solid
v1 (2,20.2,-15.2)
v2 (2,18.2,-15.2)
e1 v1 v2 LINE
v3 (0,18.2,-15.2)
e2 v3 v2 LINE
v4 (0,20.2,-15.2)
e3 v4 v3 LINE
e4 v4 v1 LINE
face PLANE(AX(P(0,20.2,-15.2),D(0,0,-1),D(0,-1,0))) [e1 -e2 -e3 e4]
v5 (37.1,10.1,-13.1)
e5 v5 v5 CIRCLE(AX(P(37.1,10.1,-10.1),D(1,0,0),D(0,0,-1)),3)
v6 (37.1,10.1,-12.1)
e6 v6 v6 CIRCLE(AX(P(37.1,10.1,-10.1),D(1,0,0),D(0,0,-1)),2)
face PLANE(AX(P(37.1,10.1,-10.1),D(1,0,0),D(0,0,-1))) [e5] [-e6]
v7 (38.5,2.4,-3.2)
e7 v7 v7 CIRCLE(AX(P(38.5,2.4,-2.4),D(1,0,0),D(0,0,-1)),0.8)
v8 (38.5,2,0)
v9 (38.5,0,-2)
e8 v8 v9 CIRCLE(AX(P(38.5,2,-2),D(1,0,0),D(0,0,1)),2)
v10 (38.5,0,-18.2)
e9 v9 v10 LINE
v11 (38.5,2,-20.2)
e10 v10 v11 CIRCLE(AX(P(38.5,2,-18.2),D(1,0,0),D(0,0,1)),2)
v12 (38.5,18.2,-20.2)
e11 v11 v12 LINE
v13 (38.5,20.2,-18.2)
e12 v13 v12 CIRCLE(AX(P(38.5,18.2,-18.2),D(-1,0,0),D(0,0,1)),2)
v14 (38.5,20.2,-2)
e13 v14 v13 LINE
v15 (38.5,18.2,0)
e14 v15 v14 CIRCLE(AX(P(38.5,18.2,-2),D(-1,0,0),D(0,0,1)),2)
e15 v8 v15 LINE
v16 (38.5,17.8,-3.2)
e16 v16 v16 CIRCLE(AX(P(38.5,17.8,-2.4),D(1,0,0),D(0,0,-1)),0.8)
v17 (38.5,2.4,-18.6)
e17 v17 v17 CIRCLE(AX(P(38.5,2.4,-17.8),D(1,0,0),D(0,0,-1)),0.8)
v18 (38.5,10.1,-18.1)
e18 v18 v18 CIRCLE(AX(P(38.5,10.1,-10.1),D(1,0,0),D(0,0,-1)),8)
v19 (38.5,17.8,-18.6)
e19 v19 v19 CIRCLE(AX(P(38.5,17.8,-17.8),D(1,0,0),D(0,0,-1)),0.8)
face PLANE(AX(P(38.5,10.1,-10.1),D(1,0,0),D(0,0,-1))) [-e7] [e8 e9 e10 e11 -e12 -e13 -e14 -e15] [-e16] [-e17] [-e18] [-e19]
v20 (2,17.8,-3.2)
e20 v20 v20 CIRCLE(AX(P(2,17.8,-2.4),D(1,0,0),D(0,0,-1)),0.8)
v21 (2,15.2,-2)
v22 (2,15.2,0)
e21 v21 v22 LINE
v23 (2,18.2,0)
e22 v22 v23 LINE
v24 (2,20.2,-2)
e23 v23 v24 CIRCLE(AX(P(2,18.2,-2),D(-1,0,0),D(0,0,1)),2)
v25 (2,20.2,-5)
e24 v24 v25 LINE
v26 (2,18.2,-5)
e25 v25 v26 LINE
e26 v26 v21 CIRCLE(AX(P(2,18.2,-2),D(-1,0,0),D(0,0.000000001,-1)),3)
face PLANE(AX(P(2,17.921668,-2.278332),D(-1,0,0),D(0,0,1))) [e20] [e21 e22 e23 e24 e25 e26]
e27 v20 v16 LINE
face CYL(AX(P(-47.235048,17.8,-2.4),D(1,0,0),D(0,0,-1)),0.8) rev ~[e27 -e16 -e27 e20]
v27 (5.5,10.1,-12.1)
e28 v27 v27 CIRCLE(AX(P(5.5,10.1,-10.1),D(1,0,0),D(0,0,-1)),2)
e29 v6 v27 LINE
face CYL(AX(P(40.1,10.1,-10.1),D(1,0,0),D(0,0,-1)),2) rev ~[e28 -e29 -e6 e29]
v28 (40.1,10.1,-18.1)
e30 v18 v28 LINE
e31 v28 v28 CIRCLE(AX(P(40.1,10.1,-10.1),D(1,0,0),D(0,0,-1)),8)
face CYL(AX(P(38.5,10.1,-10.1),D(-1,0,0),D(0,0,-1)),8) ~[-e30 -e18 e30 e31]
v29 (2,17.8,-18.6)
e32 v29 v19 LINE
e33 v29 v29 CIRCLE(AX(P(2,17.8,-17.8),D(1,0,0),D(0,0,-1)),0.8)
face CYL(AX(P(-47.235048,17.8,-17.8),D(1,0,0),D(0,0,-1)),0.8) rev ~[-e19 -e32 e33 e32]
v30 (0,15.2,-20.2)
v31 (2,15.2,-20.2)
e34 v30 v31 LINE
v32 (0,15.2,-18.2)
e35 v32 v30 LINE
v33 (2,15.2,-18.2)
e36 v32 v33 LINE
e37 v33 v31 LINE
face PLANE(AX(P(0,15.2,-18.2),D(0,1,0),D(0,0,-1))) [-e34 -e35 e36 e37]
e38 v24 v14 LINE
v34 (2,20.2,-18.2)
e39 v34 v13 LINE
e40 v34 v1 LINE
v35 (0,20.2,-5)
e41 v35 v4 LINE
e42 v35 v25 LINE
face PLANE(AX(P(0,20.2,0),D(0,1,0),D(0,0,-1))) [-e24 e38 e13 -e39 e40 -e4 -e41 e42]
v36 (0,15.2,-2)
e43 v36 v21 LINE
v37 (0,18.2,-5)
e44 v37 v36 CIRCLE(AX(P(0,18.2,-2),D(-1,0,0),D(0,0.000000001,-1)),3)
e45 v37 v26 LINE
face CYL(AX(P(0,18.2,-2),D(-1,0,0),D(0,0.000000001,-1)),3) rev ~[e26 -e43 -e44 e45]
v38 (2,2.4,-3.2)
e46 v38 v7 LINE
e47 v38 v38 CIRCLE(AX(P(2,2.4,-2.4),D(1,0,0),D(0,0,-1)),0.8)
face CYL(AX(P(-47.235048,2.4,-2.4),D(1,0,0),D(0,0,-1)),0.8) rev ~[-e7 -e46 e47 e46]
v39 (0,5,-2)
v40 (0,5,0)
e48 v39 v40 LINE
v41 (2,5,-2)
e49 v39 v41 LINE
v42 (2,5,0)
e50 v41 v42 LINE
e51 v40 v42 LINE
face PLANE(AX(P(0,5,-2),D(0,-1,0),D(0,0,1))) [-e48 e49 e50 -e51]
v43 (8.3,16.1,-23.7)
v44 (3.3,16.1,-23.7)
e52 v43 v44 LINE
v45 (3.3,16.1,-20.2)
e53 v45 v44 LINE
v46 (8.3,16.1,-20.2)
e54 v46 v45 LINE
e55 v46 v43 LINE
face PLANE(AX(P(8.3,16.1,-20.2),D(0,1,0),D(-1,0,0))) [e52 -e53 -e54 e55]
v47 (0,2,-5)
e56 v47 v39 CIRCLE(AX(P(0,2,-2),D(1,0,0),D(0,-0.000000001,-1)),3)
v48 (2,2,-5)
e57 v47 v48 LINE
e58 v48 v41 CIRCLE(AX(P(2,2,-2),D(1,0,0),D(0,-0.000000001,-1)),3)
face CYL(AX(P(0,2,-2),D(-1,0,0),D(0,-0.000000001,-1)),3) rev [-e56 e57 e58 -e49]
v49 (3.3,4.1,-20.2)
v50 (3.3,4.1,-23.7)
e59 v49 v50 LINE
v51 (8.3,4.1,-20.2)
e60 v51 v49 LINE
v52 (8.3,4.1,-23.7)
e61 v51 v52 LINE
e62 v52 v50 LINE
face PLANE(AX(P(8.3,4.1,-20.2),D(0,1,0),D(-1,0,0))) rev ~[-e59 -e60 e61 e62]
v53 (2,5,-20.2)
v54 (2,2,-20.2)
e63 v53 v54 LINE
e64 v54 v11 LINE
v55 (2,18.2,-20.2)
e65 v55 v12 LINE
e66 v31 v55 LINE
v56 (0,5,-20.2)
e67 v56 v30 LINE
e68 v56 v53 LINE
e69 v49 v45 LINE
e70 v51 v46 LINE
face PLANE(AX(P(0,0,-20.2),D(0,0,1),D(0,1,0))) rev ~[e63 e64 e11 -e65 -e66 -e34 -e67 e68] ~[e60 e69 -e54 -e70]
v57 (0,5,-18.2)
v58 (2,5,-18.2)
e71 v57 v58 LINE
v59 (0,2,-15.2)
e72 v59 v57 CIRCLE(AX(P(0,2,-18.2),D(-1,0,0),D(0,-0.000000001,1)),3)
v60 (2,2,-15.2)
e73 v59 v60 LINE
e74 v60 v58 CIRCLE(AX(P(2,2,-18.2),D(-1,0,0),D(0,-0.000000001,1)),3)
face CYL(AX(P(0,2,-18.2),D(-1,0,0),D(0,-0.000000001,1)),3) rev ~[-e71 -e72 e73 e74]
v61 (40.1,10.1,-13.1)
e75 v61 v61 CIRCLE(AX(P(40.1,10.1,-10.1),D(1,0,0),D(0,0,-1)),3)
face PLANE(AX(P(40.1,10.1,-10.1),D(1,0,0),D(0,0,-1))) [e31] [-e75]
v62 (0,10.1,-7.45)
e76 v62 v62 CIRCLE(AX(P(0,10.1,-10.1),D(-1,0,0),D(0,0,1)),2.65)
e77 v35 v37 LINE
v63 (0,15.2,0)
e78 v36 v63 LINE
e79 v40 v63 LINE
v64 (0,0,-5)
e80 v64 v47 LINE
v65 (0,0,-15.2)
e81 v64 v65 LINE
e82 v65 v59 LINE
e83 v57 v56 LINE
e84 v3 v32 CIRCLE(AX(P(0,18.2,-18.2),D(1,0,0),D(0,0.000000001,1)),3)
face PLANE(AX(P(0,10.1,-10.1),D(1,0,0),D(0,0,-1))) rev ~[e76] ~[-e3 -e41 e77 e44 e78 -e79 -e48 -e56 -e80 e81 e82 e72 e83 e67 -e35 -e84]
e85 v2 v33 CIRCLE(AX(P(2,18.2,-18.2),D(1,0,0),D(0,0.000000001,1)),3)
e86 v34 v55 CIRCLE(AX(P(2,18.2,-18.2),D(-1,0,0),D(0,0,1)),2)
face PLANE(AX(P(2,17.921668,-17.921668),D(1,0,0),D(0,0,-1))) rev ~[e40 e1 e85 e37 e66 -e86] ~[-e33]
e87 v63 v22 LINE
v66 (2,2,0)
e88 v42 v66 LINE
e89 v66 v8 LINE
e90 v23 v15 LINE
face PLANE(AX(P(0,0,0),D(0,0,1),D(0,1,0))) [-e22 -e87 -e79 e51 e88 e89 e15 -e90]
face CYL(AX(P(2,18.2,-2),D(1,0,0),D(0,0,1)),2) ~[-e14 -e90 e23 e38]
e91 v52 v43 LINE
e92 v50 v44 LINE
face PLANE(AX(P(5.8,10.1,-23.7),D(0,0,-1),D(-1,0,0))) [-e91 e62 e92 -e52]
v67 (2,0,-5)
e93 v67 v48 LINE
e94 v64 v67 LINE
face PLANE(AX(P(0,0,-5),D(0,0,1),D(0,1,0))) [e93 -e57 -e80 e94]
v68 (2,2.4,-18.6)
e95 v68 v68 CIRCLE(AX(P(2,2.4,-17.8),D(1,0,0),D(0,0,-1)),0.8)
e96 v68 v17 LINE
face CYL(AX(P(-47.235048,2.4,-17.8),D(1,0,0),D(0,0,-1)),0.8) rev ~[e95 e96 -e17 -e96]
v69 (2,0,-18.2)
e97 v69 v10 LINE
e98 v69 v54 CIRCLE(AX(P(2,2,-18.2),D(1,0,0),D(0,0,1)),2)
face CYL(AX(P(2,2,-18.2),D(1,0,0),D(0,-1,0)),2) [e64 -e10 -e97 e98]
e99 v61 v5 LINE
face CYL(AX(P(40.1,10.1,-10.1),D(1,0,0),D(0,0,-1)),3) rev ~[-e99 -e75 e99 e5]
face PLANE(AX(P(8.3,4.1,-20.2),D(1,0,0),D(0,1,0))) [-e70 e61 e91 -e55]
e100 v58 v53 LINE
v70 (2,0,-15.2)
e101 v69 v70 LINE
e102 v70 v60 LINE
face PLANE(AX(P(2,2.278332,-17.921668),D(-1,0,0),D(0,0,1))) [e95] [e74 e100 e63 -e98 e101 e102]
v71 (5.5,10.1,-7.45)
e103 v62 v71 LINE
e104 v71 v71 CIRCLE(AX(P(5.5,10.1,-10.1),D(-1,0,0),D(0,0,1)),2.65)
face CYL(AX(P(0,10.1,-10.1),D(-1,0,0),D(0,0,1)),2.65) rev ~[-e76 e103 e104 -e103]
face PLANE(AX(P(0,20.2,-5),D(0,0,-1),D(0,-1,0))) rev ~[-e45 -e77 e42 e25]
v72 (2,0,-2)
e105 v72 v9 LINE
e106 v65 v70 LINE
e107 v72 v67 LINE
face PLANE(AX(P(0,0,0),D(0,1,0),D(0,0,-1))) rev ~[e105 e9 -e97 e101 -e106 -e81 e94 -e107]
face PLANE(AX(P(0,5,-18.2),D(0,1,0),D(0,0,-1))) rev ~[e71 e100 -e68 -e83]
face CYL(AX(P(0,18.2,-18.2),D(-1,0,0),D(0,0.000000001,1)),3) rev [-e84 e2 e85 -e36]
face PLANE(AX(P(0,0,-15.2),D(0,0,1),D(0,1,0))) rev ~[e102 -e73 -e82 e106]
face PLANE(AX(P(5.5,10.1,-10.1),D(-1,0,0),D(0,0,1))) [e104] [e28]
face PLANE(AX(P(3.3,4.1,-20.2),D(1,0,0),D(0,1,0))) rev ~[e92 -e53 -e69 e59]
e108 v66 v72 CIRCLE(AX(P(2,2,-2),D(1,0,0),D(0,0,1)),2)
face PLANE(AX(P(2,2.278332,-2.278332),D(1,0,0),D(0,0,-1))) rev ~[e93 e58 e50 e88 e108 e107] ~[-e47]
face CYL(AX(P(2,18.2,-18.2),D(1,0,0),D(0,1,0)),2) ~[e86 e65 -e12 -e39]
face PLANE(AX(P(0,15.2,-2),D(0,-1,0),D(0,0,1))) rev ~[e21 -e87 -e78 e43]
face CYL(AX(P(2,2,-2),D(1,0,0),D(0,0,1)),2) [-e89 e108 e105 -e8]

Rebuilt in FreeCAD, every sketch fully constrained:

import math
import FreeCAD as App
import Part
import Sketcher
from FreeCAD import Vector
Q = App.Units.Quantity


def edges_at(feature, points):
    """Names of the edges that pass closest to the given points."""
    edges = feature.Shape.Edges
    near = lambda p: min(range(len(edges)), key=lambda i: edges[i].distToShape(Part.Vertex(*p))[0])
    return sorted({f"Edge{near(p) + 1}" for p in points})

doc = App.newDocument("Part")
body = doc.addObject("PartDesign::Body", "Body")

sketch1 = body.newObject("Sketcher::SketchObject", "Sketch")
sketch1.AttachmentSupport = (doc.getObject("YZ_Plane"), [""])
sketch1.MapMode = "FlatFace"
sketch1.addGeometry([
    Part.LineSegment(Vector(20, 0, 0), Vector(0, 0, 0)),
    Part.LineSegment(Vector(0, 0, 0), Vector(0, -20, 0)),
    Part.LineSegment(Vector(0, -20, 0), Vector(20, -20, 0)),
    Part.LineSegment(Vector(20, -20, 0), Vector(20, 0, 0)),
], False)
sketch1.addConstraint([
    Sketcher.Constraint("Coincident", 0, 2, 1, 1),
    Sketcher.Constraint("Coincident", 1, 2, 2, 1),
    Sketcher.Constraint("Coincident", 2, 2, 3, 1),
    Sketcher.Constraint("Coincident", 3, 2, 0, 1),
    Sketcher.Constraint("Horizontal", 0),
    Sketcher.Constraint("Vertical", 1),
    Sketcher.Constraint("Horizontal", 2),
    Sketcher.Constraint("Vertical", 3),
    Sketcher.Constraint("Coincident", 0, 2, -1, 1),
    Sketcher.Constraint("Equal", 2, 1),
    Sketcher.Constraint("DistanceX", 0, 2, 0, 1, Q("20.2 mm")),
])
pad1 = body.newObject("PartDesign::Pad", "Pad")
pad1.Profile = sketch1
pad1.Length = 38.5

sketch2 = body.newObject("Sketcher::SketchObject", "Sketch001")
sketch2.AttachmentSupport = (doc.getObject("YZ_Plane"), [""])
sketch2.MapMode = "FlatFace"
sketch2.AttachmentOffset = App.Placement(Vector(0, 0, 38.5), App.Rotation())
sketch2.addGeometry(Part.Circle(Vector(10, -10, 0), Vector(0, 0, 1), 8), False)
sketch2.addConstraint([
    Sketcher.Constraint("Diameter", 0, Q("16 mm")),
    Sketcher.Constraint("DistanceX", -1, 1, 0, 3, Q("10.1 mm")),
    Sketcher.Constraint("DistanceY", 0, 3, -1, 1, Q("10.1 mm")),
])
pad2 = body.newObject("PartDesign::Pad", "Pad001")
pad2.Profile = sketch2
pad2.Length = 1.6

sketch3 = body.newObject("Sketcher::SketchObject", "Sketch002")
sketch3.AttachmentSupport = (doc.getObject("YZ_Plane"), [""])
sketch3.MapMode = "FlatFace"
sketch3.addGeometry([
    Part.LineSegment(Vector(20.2, -5, 0), Vector(18.2, -5, 0)),
    Part.ArcOfCircle(Part.Circle(Vector(18.2, -2, 0), Vector(0, 0, 1), 3), math.radians(180), math.radians(270)),
    Part.LineSegment(Vector(15.2, -2, 0), Vector(15.2, 0, 0)),
    Part.LineSegment(Vector(15.2, 0, 0), Vector(20.2, 0, 0)),
    Part.LineSegment(Vector(20.2, 0, 0), Vector(20.2, -5, 0)),
    Part.LineSegment(Vector(20.2, -15.2, 0), Vector(20.2, -20.2, 0)),
    Part.LineSegment(Vector(20.2, -20.2, 0), Vector(15.2, -20.2, 0)),
    Part.LineSegment(Vector(15.2, -20.2, 0), Vector(15.2, -18.2, 0)),
    Part.ArcOfCircle(Part.Circle(Vector(18.2, -18.2, 0), Vector(0, 0, 1), 3), math.radians(90), math.radians(180)),
    Part.LineSegment(Vector(18.2, -15.2, 0), Vector(20.2, -15.2, 0)),
    Part.LineSegment(Vector(0, -5, 0), Vector(0, 0, 0)),
    Part.LineSegment(Vector(0, 0, 0), Vector(5, 0, 0)),
    Part.LineSegment(Vector(5, 0, 0), Vector(5, -2, 0)),
    Part.ArcOfCircle(Part.Circle(Vector(2, -2, 0), Vector(0, 0, 1), 3), math.radians(-90), math.radians(0)),
    Part.LineSegment(Vector(2, -5, 0), Vector(0, -5, 0)),
    Part.LineSegment(Vector(0, -15.2, 0), Vector(2, -15.2, 0)),
    Part.ArcOfCircle(Part.Circle(Vector(2, -18.2, 0), Vector(0, 0, 1), 3), math.radians(0), math.radians(90)),
    Part.LineSegment(Vector(5, -18.2, 0), Vector(5, -20.2, 0)),
    Part.LineSegment(Vector(5, -20.2, 0), Vector(0, -20.2, 0)),
    Part.LineSegment(Vector(0, -20.2, 0), Vector(0, -15.2, 0)),
], False)
sketch3.addConstraint([
    Sketcher.Constraint("Tangent", 0, 2, 1, 2),
    Sketcher.Constraint("Tangent", 1, 1, 2, 1),
    Sketcher.Constraint("Coincident", 2, 2, 3, 1),
    Sketcher.Constraint("Coincident", 3, 2, 4, 1),
    Sketcher.Constraint("Coincident", 4, 2, 0, 1),
    Sketcher.Constraint("Coincident", 5, 2, 6, 1),
    Sketcher.Constraint("Coincident", 6, 2, 7, 1),
    Sketcher.Constraint("Tangent", 7, 2, 8, 2),
    Sketcher.Constraint("Tangent", 8, 1, 9, 1),
    Sketcher.Constraint("Coincident", 9, 2, 5, 1),
    Sketcher.Constraint("Coincident", 10, 2, 11, 1),
    Sketcher.Constraint("Coincident", 11, 2, 12, 1),
    Sketcher.Constraint("Tangent", 12, 2, 13, 2),
    Sketcher.Constraint("Tangent", 13, 1, 14, 1),
    Sketcher.Constraint("Coincident", 14, 2, 10, 1),
    Sketcher.Constraint("Tangent", 15, 2, 16, 2),
    Sketcher.Constraint("Tangent", 16, 1, 17, 1),
    Sketcher.Constraint("Coincident", 17, 2, 18, 1),
    Sketcher.Constraint("Coincident", 18, 2, 19, 1),
    Sketcher.Constraint("Coincident", 19, 2, 15, 1),
    Sketcher.Constraint("Horizontal", 0),
    Sketcher.Constraint("Vertical", 2),
    Sketcher.Constraint("Horizontal", 3),
    Sketcher.Constraint("Vertical", 4),
    Sketcher.Constraint("Vertical", 5),
    Sketcher.Constraint("Horizontal", 6),
    Sketcher.Constraint("Vertical", 7),
    Sketcher.Constraint("Horizontal", 9),
    Sketcher.Constraint("Vertical", 10),
    Sketcher.Constraint("Horizontal", 11),
    Sketcher.Constraint("Vertical", 12),
    Sketcher.Constraint("Horizontal", 14),
    Sketcher.Constraint("Horizontal", 15),
    Sketcher.Constraint("Vertical", 17),
    Sketcher.Constraint("Horizontal", 18),
    Sketcher.Constraint("Vertical", 19),
    Sketcher.Constraint("Coincident", 10, 2, -1, 1),
    Sketcher.Constraint("Equal", 1, 8),
    Sketcher.Constraint("Equal", 8, 13),
    Sketcher.Constraint("Equal", 13, 16),
    Sketcher.Constraint("PointOnObject", 2, 2, -1),
    Sketcher.Constraint("PointOnObject", 18, 2, -2),
    Sketcher.Constraint("Horizontal", 1, 3, 13, 3),
    Sketcher.Constraint("Horizontal", 8, 3, 16, 3),
    Sketcher.Constraint("Horizontal", 6, 2, 17, 2),
    Sketcher.Constraint("Vertical", 1, 3, 8, 3),
    Sketcher.Constraint("Vertical", 13, 3, 16, 3),
    Sketcher.Constraint("Vertical", 4, 2, 5, 2),
    Sketcher.Constraint("Equal", 6, 11),
    Sketcher.Constraint("Equal", 15, 2),
    Sketcher.Constraint("Equal", 4, 5),
    Sketcher.Constraint("Radius", 1, Q("3 mm")),
    Sketcher.Constraint("DistanceX", 0, 2, 0, 1, Q("2 mm")),
    Sketcher.Constraint("DistanceX", -1, 1, 1, 3, Q("18.2 mm")),
    Sketcher.Constraint("DistanceY", 8, 3, -1, 1, Q("18.2 mm")),
])
pocket1 = body.newObject("PartDesign::Pocket", "Pocket")
pocket1.Profile = sketch3
pocket1.Length = 2
pocket1.Reversed = True

sketch4 = body.newObject("Sketcher::SketchObject", "Sketch003")
sketch4.AttachmentSupport = (doc.getObject("YZ_Plane"), [""])
sketch4.MapMode = "FlatFace"
sketch4.AttachmentOffset = App.Placement(Vector(0, 0, 2), App.Rotation())
sketch4.addGeometry([
    Part.Circle(Vector(17.8, -17.8, 0), Vector(0, 0, 1), 0.8),
    Part.Circle(Vector(17.8, -2.4, 0), Vector(0, 0, 1), 0.8),
    Part.Circle(Vector(2.4, -2.4, 0), Vector(0, 0, 1), 0.8),
    Part.Circle(Vector(2.4, -17.8, 0), Vector(0, 0, 1), 0.8),
], False)
sketch4.addConstraint([
    Sketcher.Constraint("Equal", 0, 1),
    Sketcher.Constraint("Equal", 1, 2),
    Sketcher.Constraint("Equal", 2, 3),
    Sketcher.Constraint("Horizontal", 1, 3, 2, 3),
    Sketcher.Constraint("Horizontal", 0, 3, 3, 3),
    Sketcher.Constraint("Vertical", 0, 3, 1, 3),
    Sketcher.Constraint("Vertical", 2, 3, 3, 3),
    Sketcher.Constraint("Diameter", 0, Q("1.6 mm")),
    Sketcher.Constraint("DistanceX", -1, 1, 0, 3, Q("17.8 mm")),
    Sketcher.Constraint("DistanceY", 0, 3, -1, 1, Q("17.8 mm")),
    Sketcher.Constraint("DistanceY", 1, 3, -1, 1, Q("2.4 mm")),
    Sketcher.Constraint("DistanceX", -1, 1, 2, 3, Q("2.4 mm")),
])
doc.recompute()
hole = body.newObject("PartDesign::Hole", "Hole")
hole.Profile = sketch4
hole.ThreadType = "None"
hole.Diameter = 1.6
hole.DepthType = "ThroughAll"
hole.Reversed = True
doc.recompute()

fillet = body.newObject("PartDesign::Fillet", "Fillet")
fillet.Base = (hole, edges_at(hole, [
    (20.25, 20.2, 0),
    (20.25, 20.2, -20.2),
    (20.25, 0, -20.2),
    (20.25, 0, 0),
]))
fillet.Radius = 2

sketch5 = body.newObject("Sketcher::SketchObject", "Sketch004")
sketch5.AttachmentSupport = (doc.getObject("YZ_Plane"), [""])
sketch5.MapMode = "FlatFace"
sketch5.AttachmentOffset = App.Placement(Vector(0, 0, 40.1), App.Rotation())
sketch5.addGeometry(Part.Circle(Vector(10.1, -10.1, 0), Vector(0, 0, 1), 2), False)
sketch5.addConstraint([
    Sketcher.Constraint("Diameter", 0, Q("4 mm")),
    Sketcher.Constraint("DistanceX", -1, 1, 0, 3, Q("10.1 mm")),
    Sketcher.Constraint("DistanceY", 0, 3, -1, 1, Q("10.1 mm")),
])
pocket2 = body.newObject("PartDesign::Pocket", "Pocket001")
pocket2.Profile = sketch5
pocket2.Type = "ThroughAll"

sketch6 = body.newObject("Sketcher::SketchObject", "Sketch005")
sketch6.AttachmentSupport = (doc.getObject("YZ_Plane"), [""])
sketch6.MapMode = "FlatFace"
sketch6.addGeometry(Part.Circle(Vector(10.1, -10.1, 0), Vector(0, 0, 1), 2.6), False)
sketch6.addConstraint([
    Sketcher.Constraint("Diameter", 0, Q("5.3 mm")),
    Sketcher.Constraint("DistanceX", -1, 1, 0, 3, Q("10.1 mm")),
    Sketcher.Constraint("DistanceY", 0, 3, -1, 1, Q("10.1 mm")),
])
pocket3 = body.newObject("PartDesign::Pocket", "Pocket002")
pocket3.Profile = sketch6
pocket3.Length = 5.5
pocket3.Reversed = True

sketch7 = body.newObject("Sketcher::SketchObject", "Sketch006")
sketch7.AttachmentSupport = (doc.getObject("YZ_Plane"), [""])
sketch7.MapMode = "FlatFace"
sketch7.AttachmentOffset = App.Placement(Vector(0, 0, 40.1), App.Rotation())
sketch7.addGeometry(Part.Circle(Vector(10.1, -10.1, 0), Vector(0, 0, 1), 3), False)
sketch7.addConstraint([
    Sketcher.Constraint("Diameter", 0, Q("6 mm")),
    Sketcher.Constraint("DistanceX", -1, 1, 0, 3, Q("10.1 mm")),
    Sketcher.Constraint("DistanceY", 0, 3, -1, 1, Q("10.1 mm")),
])
pocket4 = body.newObject("PartDesign::Pocket", "Pocket003")
pocket4.Profile = sketch7
pocket4.Length = 3

sketch8 = body.newObject("Sketcher::SketchObject", "Sketch007")
sketch8.AttachmentSupport = (doc.getObject("XY_Plane"), [""])
sketch8.MapMode = "FlatFace"
sketch8.AttachmentOffset = App.Placement(Vector(0, 0, -20.2), App.Rotation())
sketch8.addGeometry([
    Part.LineSegment(Vector(8, 16, 0), Vector(8, 4, 0)),
    Part.LineSegment(Vector(8, 4, 0), Vector(3, 4, 0)),
    Part.LineSegment(Vector(3, 4, 0), Vector(3, 16, 0)),
    Part.LineSegment(Vector(3, 16, 0), Vector(8, 16, 0)),
], False)
sketch8.addConstraint([
    Sketcher.Constraint("Coincident", 0, 2, 1, 1),
    Sketcher.Constraint("Coincident", 1, 2, 2, 1),
    Sketcher.Constraint("Coincident", 2, 2, 3, 1),
    Sketcher.Constraint("Coincident", 3, 2, 0, 1),
    Sketcher.Constraint("Vertical", 0),
    Sketcher.Constraint("Horizontal", 1),
    Sketcher.Constraint("Vertical", 2),
    Sketcher.Constraint("Horizontal", 3),
    Sketcher.Constraint("DistanceX", 1, 2, 1, 1, Q("5 mm")),
    Sketcher.Constraint("DistanceY", 0, 2, 0, 1, Q("12 mm")),
    Sketcher.Constraint("DistanceX", -1, 1, 0, 2, Q("8.3 mm")),
    Sketcher.Constraint("DistanceY", -1, 1, 0, 2, Q("4.1 mm")),
])
pad3 = body.newObject("PartDesign::Pad", "Pad002")
pad3.Profile = sketch8
pad3.Length = 3.5
pad3.Reversed = True

doc.recompute()
